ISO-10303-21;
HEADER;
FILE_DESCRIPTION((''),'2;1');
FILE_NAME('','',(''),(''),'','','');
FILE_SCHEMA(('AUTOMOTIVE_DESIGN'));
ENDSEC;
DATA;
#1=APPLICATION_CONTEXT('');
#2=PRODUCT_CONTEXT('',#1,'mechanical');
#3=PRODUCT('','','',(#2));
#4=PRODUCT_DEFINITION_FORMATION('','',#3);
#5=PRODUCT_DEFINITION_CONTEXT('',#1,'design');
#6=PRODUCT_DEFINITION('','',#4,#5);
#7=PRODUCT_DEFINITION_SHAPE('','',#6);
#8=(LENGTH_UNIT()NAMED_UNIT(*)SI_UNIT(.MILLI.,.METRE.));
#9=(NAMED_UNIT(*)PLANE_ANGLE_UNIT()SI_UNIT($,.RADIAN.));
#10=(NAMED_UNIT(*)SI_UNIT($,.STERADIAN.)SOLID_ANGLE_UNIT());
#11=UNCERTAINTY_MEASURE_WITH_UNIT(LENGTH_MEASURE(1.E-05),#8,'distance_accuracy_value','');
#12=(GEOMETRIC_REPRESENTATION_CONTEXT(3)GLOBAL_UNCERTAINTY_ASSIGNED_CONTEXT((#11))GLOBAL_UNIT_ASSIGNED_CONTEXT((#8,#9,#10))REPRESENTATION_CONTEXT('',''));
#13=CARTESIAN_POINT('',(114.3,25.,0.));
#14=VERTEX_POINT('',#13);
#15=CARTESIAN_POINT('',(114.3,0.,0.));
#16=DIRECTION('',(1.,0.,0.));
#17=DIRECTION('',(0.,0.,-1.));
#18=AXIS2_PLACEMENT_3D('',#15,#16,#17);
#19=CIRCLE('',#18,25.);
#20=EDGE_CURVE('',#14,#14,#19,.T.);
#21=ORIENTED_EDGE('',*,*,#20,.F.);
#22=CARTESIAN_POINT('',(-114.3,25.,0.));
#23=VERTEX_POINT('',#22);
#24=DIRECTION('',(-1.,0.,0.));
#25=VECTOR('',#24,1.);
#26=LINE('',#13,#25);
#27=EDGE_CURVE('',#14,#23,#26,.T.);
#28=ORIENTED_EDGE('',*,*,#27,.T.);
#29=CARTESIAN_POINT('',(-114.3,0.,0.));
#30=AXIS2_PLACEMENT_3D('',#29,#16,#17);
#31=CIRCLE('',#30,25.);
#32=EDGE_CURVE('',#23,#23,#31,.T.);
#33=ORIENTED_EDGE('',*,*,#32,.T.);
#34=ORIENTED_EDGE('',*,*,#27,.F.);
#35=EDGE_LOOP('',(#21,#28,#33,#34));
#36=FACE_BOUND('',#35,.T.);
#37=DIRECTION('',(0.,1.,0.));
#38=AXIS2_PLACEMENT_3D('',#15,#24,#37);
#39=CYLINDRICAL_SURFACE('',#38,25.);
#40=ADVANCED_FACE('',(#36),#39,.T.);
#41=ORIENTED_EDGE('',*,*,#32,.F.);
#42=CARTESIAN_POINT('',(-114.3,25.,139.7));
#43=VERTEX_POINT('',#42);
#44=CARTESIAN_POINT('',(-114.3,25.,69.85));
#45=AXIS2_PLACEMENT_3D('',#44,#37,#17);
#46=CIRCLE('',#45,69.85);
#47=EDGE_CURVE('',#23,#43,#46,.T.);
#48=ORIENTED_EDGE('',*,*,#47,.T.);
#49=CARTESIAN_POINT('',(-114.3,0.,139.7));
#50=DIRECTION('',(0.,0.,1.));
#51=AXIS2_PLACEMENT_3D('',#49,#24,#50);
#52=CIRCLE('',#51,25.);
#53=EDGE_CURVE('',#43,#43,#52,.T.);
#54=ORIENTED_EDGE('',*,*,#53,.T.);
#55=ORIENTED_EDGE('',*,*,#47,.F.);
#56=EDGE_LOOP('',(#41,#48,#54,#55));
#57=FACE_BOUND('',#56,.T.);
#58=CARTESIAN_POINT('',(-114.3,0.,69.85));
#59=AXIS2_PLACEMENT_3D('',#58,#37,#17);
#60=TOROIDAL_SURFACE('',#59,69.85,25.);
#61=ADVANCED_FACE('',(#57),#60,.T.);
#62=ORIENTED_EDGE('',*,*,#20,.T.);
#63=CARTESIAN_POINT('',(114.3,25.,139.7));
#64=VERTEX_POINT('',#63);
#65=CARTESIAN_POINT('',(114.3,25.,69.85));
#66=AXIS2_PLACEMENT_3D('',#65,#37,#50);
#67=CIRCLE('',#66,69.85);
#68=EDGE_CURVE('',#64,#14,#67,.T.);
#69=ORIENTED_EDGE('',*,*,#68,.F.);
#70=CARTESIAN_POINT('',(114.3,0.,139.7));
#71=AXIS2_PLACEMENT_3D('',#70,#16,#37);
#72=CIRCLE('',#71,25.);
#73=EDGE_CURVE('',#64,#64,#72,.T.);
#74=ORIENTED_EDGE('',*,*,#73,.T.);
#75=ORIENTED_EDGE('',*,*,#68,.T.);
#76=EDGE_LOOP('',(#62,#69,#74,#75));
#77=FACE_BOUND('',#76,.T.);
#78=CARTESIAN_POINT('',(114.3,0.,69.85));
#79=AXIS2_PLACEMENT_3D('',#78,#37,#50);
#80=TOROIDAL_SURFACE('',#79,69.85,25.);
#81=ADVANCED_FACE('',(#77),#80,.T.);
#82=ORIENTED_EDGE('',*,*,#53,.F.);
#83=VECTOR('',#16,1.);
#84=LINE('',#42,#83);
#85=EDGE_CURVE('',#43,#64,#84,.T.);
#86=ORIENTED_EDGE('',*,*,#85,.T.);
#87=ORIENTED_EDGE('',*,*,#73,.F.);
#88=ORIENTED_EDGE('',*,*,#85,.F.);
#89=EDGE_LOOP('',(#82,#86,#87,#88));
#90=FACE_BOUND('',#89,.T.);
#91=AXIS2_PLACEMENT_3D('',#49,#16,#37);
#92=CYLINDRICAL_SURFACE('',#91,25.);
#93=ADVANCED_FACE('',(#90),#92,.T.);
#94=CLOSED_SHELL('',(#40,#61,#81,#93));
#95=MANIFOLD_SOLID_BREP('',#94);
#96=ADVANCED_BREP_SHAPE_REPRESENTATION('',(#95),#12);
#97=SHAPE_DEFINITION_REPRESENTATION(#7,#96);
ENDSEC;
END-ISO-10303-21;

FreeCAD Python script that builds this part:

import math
import FreeCAD as App
import Part
import Sketcher
from FreeCAD import Vector
Q = App.Units.Quantity

doc = App.newDocument("Part")
body = doc.addObject("PartDesign::Body", "Body")

sketch1 = body.newObject("Sketcher::SketchObject", "Sketch")
sketch1.AttachmentSupport = (doc.getObject("YZ_Plane"), [""])
sketch1.MapMode = "FlatFace"
sketch1.addGeometry(Part.Circle(Vector(0, 0, 0), Vector(0, 0, 1), 25), False)
sketch1.addConstraint(Sketcher.Constraint("Coincident", 0, 3, -1, 1))
sketch1.addConstraint(Sketcher.Constraint("Diameter", 0, 50.0))

sketch2 = body.newObject("Sketcher::SketchObject", "Sketch001")
sketch2.AttachmentSupport = (doc.getObject("XZ_Plane"), [""])
sketch2.MapMode = "FlatFace"
sketch2.addGeometry(Part.ArcOfCircle(Part.Circle(Vector(-114, 70, 0), Vector(0, 0, 1), 70), math.radians(90), math.radians(270)), False)
sketch2.addGeometry(Part.LineSegment(Vector(-114, 140, 0), Vector(114, 140, 0)), False)
sketch2.addGeometry(Part.ArcOfCircle(Part.Circle(Vector(114, 70, 0), Vector(0, 0, 1), 70), math.radians(-90), math.radians(90)), False)
sketch2.addGeometry(Part.LineSegment(Vector(114, 0, 0), Vector(-114, 0, 0)), False)
sketch2.addConstraint(Sketcher.Constraint("Tangent", 0, 1, 1, 1))
sketch2.addConstraint(Sketcher.Constraint("Tangent", 1, 2, 2, 2))
sketch2.addConstraint(Sketcher.Constraint("Tangent", 2, 1, 3, 1))
sketch2.addConstraint(Sketcher.Constraint("Tangent", 3, 2, 0, 2))
sketch2.addConstraint(Sketcher.Constraint("Horizontal", 1))
sketch2.addConstraint(Sketcher.Constraint("Horizontal", 3))
sketch2.addConstraint(Sketcher.Constraint("Symmetric", 2, 1, 3, 2, -1, 1))
sketch2.addConstraint(Sketcher.Constraint("DistanceX", 1, 1, 1, 2, Q("9 in")))
sketch2.addConstraint(Sketcher.Constraint("Radius", 0, Q("2.75 in")))
doc.recompute()

additivepipe = body.newObject("PartDesign::AdditivePipe", "AdditivePipe")
additivepipe.Profile = sketch1
additivepipe.Spine = (sketch2, ["Edge1", "Edge2", "Edge3", "Edge4"])

doc.recompute()
